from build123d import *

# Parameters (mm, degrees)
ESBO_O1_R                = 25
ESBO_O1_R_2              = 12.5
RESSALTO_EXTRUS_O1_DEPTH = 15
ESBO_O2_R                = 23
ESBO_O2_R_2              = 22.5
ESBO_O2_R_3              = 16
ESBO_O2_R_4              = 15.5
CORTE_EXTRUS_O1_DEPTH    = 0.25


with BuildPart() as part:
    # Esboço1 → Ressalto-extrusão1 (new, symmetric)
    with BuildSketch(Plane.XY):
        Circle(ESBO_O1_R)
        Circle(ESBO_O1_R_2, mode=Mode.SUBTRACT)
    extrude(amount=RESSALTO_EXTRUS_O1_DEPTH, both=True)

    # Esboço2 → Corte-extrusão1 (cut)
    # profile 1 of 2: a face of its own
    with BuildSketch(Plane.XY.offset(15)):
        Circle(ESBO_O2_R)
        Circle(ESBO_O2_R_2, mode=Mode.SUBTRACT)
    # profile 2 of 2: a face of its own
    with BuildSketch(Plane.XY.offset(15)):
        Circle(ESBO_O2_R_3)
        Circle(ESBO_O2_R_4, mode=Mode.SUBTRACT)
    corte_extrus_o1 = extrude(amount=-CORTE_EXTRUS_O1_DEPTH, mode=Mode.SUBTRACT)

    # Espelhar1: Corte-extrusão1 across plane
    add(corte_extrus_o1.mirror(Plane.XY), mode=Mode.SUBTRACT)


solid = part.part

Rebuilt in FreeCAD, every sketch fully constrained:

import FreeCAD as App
import Part
import Sketcher

V = App.Vector

doc = App.newDocument("Part")
body = doc.addObject("PartDesign::Body", "Body")

sketch1 = body.newObject("Sketcher::SketchObject", "Sketch")
sketch1.AttachmentSupport = (doc.getObject("XY_Plane"), [""])
sketch1.MapMode = "FlatFace"
sketch1.addGeometry(Part.Circle(V(0, 0, 0), V(0, 0, 1), 25), False)
sketch1.addGeometry(Part.Circle(V(0, 0, 0), V(0, 0, 1), 12), False)
sketch1.addConstraint(Sketcher.Constraint("Coincident", 0, 3, -1, 1))
sketch1.addConstraint(Sketcher.Constraint("Coincident", 1, 3, -1, 1))
sketch1.addConstraint(Sketcher.Constraint("Diameter", 0, 50.0))
sketch1.addConstraint(Sketcher.Constraint("Diameter", 1, 25.0))
pad1 = body.newObject("PartDesign::Pad", "Pad")
pad1.Profile = sketch1
pad1.Length = 30
pad1.Midplane = True

sketch2 = body.newObject("Sketcher::SketchObject", "Sketch001")
sketch2.AttachmentSupport = (doc.getObject("XY_Plane"), [""])
sketch2.MapMode = "FlatFace"
sketch2.AttachmentOffset = App.Placement(V(0, 0, 15), App.Rotation())
sketch2.addGeometry(Part.Circle(V(0, 0, 0), V(0, 0, 1), 23), False)
sketch2.addGeometry(Part.Circle(V(0, 0, 0), V(0, 0, 1), 22), False)
sketch2.addGeometry(Part.Circle(V(0, 0, 0), V(0, 0, 1), 16), False)
sketch2.addGeometry(Part.Circle(V(0, 0, 0), V(0, 0, 1), 16), False)
sketch2.addConstraint(Sketcher.Constraint("Coincident", 0, 3, -1, 1))
sketch2.addConstraint(Sketcher.Constraint("Coincident", 1, 3, -1, 1))
sketch2.addConstraint(Sketcher.Constraint("Coincident", 2, 3, -1, 1))
sketch2.addConstraint(Sketcher.Constraint("Coincident", 3, 3, -1, 1))
sketch2.addConstraint(Sketcher.Constraint("Diameter", 0, 46.0))
sketch2.addConstraint(Sketcher.Constraint("Diameter", 1, 45.0))
sketch2.addConstraint(Sketcher.Constraint("Diameter", 2, 32.0))
sketch2.addConstraint(Sketcher.Constraint("Diameter", 3, 31.0))
pocket1 = body.newObject("PartDesign::Pocket", "Pocket")
pocket1.Profile = sketch2
pocket1.Length = 0.25
doc.recompute()

mirrored = body.newObject("PartDesign::Mirrored", "Mirrored")
mirrored.Originals = [pocket1]
mirrored.MirrorPlane = (doc.getObject("XY_Plane"), [""])
body.Tip = mirrored

doc.recompute()
